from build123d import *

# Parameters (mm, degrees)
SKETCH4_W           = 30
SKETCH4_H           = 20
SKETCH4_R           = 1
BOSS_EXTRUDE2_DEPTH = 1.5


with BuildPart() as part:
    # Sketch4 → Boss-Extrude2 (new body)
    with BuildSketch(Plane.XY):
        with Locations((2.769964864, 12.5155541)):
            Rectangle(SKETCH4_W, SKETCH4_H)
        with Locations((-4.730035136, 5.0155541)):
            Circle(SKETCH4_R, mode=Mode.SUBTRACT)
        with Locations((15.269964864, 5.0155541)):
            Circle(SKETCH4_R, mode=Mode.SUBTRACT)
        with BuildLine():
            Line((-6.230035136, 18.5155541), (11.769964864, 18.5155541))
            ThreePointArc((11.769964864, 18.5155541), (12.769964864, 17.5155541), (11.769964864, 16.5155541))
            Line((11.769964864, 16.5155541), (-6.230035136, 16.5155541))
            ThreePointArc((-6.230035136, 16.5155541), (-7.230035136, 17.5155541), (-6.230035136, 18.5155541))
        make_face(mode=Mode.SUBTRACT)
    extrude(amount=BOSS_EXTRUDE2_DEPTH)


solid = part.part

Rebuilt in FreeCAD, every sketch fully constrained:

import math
import FreeCAD as App
import Part
import Sketcher
Q = App.Units.Quantity

doc = App.newDocument("Part")
body = doc.addObject("PartDesign::Body", "Body")

# Sketch on XY plane
sketch1 = body.newObject("Sketcher::SketchObject", "Sketch")
sketch1.AttachmentSupport = (doc.getObject("XY_Plane"), [""])
sketch1.MapMode = "FlatFace"
sketch1.addGeometry([
    Part.LineSegment(App.Vector(-12.230035, 22.515554, 0), App.Vector(-12.230035, 2.515554, 0)),  # 0
    Part.LineSegment(App.Vector(-12.230035, 2.515554, 0), App.Vector(17.769965, 2.515554, 0)),  # 1
    Part.LineSegment(App.Vector(17.769965, 2.515554, 0), App.Vector(17.769965, 22.515554, 0)),  # 2
    Part.LineSegment(App.Vector(17.769965, 22.515554, 0), App.Vector(-12.230035, 22.515554, 0)),  # 3
    Part.Circle(App.Vector(-4.730035, 5.015554, 0), App.Vector(0, 0, 1), 1),  # 4
    Part.Circle(App.Vector(15.269965, 5.015554, 0), App.Vector(0, 0, 1), 1),  # 5
    Part.ArcOfCircle(Part.Circle(App.Vector(-6.230035, 17.515554, 0), App.Vector(0, 0, 1), 1), math.radians(90), math.radians(270)),  # 6
    Part.LineSegment(App.Vector(-6.230035, 18.515554, 0), App.Vector(11.769965, 18.515554, 0)),  # 7
    Part.ArcOfCircle(Part.Circle(App.Vector(11.769965, 17.515554, 0), App.Vector(0, 0, 1), 1), math.radians(-90), math.radians(90)),  # 8
    Part.LineSegment(App.Vector(11.769965, 16.515554, 0), App.Vector(-6.230035, 16.515554, 0)),  # 9
], False)
sketch1.addConstraint([
    Sketcher.Constraint("Coincident", 0, 2, 1, 1),
    Sketcher.Constraint("Coincident", 1, 2, 2, 1),
    Sketcher.Constraint("Coincident", 2, 2, 3, 1),
    Sketcher.Constraint("Coincident", 3, 2, 0, 1),
    Sketcher.Constraint("Tangent", 6, 1, 7, 1),
    Sketcher.Constraint("Tangent", 7, 2, 8, 2),
    Sketcher.Constraint("Tangent", 8, 1, 9, 1),
    Sketcher.Constraint("Tangent", 9, 2, 6, 2),
    Sketcher.Constraint("Vertical", 0),
    Sketcher.Constraint("Horizontal", 1),
    Sketcher.Constraint("Vertical", 2),
    Sketcher.Constraint("Horizontal", 3),
    Sketcher.Constraint("Horizontal", 7),
    Sketcher.Constraint("Horizontal", 9),
    Sketcher.Constraint("Equal", 4, 5),
    Sketcher.Constraint("Equal", 5, 6),
    Sketcher.Constraint("Horizontal", 4, 3, 5, 3),
    Sketcher.Constraint("Diameter", 4, Q("2 mm")),
    Sketcher.Constraint("DistanceX", 1, 1, 1, 2, Q("30 mm")),
    Sketcher.Constraint("DistanceX", 7, 1, 7, 2, Q("18 mm")),
    Sketcher.Constraint("DistanceY", 0, 2, 0, 1, Q("20 mm")),
    Sketcher.Constraint("DistanceX", 4, 3, 5, 3, Q("20 mm")),
    Sketcher.Constraint("DistanceX", 0, 2, 6, 3, Q("6 mm")),
    Sketcher.Constraint("DistanceY", 0, 2, 6, 3, Q("15 mm")),
    Sketcher.Constraint("DistanceX", 6, 3, 4, 3, Q("1.5 mm")),
    Sketcher.Constraint("DistanceY", 4, 3, 6, 3, Q("12.5 mm")),
    Sketcher.Constraint("DistanceX", 4, 3, -1, 1, Q("4.730035 mm")),
    Sketcher.Constraint("DistanceY", -1, 1, 4, 3, Q("5.015554 mm")),
])
pad1 = body.newObject("PartDesign::Pad", "Pad")
pad1.Profile = sketch1
pad1.Length = 1.5

doc.recompute()
